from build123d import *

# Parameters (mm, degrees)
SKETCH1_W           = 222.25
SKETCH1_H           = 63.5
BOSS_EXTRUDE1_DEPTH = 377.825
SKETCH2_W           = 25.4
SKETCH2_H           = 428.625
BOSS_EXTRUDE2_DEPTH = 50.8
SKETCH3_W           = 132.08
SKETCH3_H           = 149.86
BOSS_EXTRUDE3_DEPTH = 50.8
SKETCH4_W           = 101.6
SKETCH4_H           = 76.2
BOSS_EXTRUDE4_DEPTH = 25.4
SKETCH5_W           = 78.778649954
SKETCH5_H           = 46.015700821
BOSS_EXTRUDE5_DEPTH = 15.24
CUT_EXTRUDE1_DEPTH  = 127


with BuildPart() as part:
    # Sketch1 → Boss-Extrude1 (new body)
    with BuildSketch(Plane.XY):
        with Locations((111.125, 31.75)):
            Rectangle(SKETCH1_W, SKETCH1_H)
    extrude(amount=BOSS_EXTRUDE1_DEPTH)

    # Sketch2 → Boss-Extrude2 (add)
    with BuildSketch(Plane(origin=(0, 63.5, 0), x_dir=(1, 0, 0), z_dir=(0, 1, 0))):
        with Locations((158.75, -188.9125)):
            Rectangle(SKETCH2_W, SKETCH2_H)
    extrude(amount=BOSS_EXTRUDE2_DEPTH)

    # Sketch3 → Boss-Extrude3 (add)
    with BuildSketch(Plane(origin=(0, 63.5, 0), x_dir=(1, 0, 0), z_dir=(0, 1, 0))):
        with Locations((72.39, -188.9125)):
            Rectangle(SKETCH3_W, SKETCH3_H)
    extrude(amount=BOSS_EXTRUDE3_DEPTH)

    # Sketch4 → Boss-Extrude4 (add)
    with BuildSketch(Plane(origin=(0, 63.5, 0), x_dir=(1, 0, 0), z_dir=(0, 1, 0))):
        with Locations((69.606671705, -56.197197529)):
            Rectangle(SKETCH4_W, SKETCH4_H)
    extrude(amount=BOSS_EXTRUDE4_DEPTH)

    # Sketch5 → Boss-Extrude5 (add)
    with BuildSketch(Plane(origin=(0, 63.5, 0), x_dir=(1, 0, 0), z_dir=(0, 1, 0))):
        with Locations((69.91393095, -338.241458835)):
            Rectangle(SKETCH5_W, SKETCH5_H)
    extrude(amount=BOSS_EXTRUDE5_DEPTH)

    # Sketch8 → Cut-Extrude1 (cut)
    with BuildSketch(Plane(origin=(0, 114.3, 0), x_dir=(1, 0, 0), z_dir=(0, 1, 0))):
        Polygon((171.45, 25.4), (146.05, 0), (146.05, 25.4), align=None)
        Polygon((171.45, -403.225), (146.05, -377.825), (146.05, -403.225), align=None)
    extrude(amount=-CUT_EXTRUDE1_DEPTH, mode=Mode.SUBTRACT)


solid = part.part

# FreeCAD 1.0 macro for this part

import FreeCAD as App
import Part
import Sketcher

V = App.Vector
Q = App.Units.Quantity


def add_polygon(sketch, points):
    """Adds a closed chain of lines whose ends are joined by coincident constraints."""
    first, n = sketch.GeometryCount, len(points)
    for a, b in zip(points, points[1:] + points[:1]):
        sketch.addGeometry(Part.LineSegment(App.Vector(*a, 0), App.Vector(*b, 0)), False)
    for i in range(n):
        sketch.addConstraint(Sketcher.Constraint("Coincident", first + i, 2, first + (i + 1) % n, 1))

doc = App.newDocument("Part")
body = doc.addObject("PartDesign::Body", "Body")

sketch1 = doc.addObject("Sketcher::SketchObject", "Sketch")
body.addObject(sketch1)
sketch1.AttachmentSupport = (doc.XY_Plane, [""])
sketch1.MapMode = "FlatFace"
add_polygon(sketch1, [(0, 63.5), (0, 0), (222.25, 0), (222.25, 63.5)])
sketch1.addConstraint(Sketcher.Constraint("Vertical", 0))
sketch1.addConstraint(Sketcher.Constraint("Horizontal", 1))
sketch1.addConstraint(Sketcher.Constraint("Vertical", 2))
sketch1.addConstraint(Sketcher.Constraint("Horizontal", 3))
sketch1.addConstraint(Sketcher.Constraint("Coincident", 0, 2, -1, 1))
sketch1.addConstraint(Sketcher.Constraint("DistanceY", 0, 2, 0, 1, Q("2.5 in")))
sketch1.addConstraint(Sketcher.Constraint("DistanceX", 1, 1, 1, 2, Q("8.75 in")))
pad1 = doc.addObject("PartDesign::Pad", "Pad")
body.addObject(pad1)
pad1.Profile = sketch1
pad1.Length = Q("14.875 in")

sketch2 = doc.addObject("Sketcher::SketchObject", "Sketch001")
body.addObject(sketch2)
sketch2.AttachmentSupport = (doc.XZ_Plane, [""])
sketch2.MapMode = "FlatFace"
sketch2.AttachmentOffset = App.Placement(V(0, 0, -2.5 * 25.4), App.Rotation())
add_polygon(sketch2, [(146.05, -25.4), (146.05, 403.225), (171.45, 403.225), (171.45, -25.4)])
sketch2.addConstraint(Sketcher.Constraint("Vertical", 0))
sketch2.addConstraint(Sketcher.Constraint("Horizontal", 1))
sketch2.addConstraint(Sketcher.Constraint("Vertical", 2))
sketch2.addConstraint(Sketcher.Constraint("Horizontal", 3))
sketch2.addConstraint(Sketcher.Constraint("DistanceX", 1, 1, 1, 2, Q("1 in")))
sketch2.addConstraint(Sketcher.Constraint("DistanceY", 2, 2, -1, 1, Q("1 in")))
sketch2.addConstraint(Sketcher.Constraint("DistanceY", 0, 1, 0, 2, Q("16.875 in")))
sketch2.addConstraint(Sketcher.Constraint("DistanceX", -1, 1, 0, 2, Q("5.75 in")))
pad2 = doc.addObject("PartDesign::Pad", "Pad001")
body.addObject(pad2)
pad2.Profile = sketch2
pad2.Length = Q("2 in")
pad2.Reversed = True

sketch3 = doc.addObject("Sketcher::SketchObject", "Sketch002")
body.addObject(sketch3)
sketch3.AttachmentSupport = (doc.XZ_Plane, [""])
sketch3.MapMode = "FlatFace"
sketch3.AttachmentOffset = App.Placement(V(0, 0, -2.5 * 25.4), App.Rotation())
add_polygon(sketch3, [(6.35, 113.9825), (6.35, 263.8425), (138.43, 263.8425), (138.43, 113.9825)])
sketch3.addConstraint(Sketcher.Constraint("Vertical", 0))
sketch3.addConstraint(Sketcher.Constraint("Horizontal", 1))
sketch3.addConstraint(Sketcher.Constraint("Vertical", 2))
sketch3.addConstraint(Sketcher.Constraint("Horizontal", 3))
sketch3.addConstraint(Sketcher.Constraint("DistanceX", 1, 1, 1, 2, Q("5.2 in")))
sketch3.addConstraint(Sketcher.Constraint("DistanceY", 0, 1, 0, 2, Q("5.9 in")))
sketch3.addConstraint(Sketcher.Constraint("DistanceX", -1, 1, 0, 2, Q("0.25 in")))
sketch3.addConstraint(Sketcher.Constraint("DistanceY", -1, 1, 0, 2, Q("10.3875 in")))
pad3 = doc.addObject("PartDesign::Pad", "Pad002")
body.addObject(pad3)
pad3.Profile = sketch3
pad3.Length = Q("2 in")
pad3.Reversed = True

sketch4 = doc.addObject("Sketcher::SketchObject", "Sketch003")
body.addObject(sketch4)
sketch4.AttachmentSupport = (doc.XZ_Plane, [""])
sketch4.MapMode = "FlatFace"
sketch4.AttachmentOffset = App.Placement(V(0, 0, -2.5 * 25.4), App.Rotation())
add_polygon(sketch4, [(18.806672, 18.097198), (18.806672, 94.297198), (120.406672, 94.297198), (120.406672, 18.097198)])
sketch4.addConstraint(Sketcher.Constraint("Vertical", 0))
sketch4.addConstraint(Sketcher.Constraint("Horizontal", 1))
sketch4.addConstraint(Sketcher.Constraint("Vertical", 2))
sketch4.addConstraint(Sketcher.Constraint("Horizontal", 3))
sketch4.addConstraint(Sketcher.Constraint("DistanceX", 1, 1, 1, 2, Q("4 in")))
sketch4.addConstraint(Sketcher.Constraint("DistanceY", 0, 1, 0, 2, Q("3 in")))
sketch4.addConstraint(Sketcher.Constraint("DistanceX", -1, 1, 0, 2, 18.806672))
sketch4.addConstraint(Sketcher.Constraint("DistanceY", -1, 1, 0, 2, 94.297198))
pad4 = doc.addObject("PartDesign::Pad", "Pad003")
body.addObject(pad4)
pad4.Profile = sketch4
pad4.Length = Q("1 in")
pad4.Reversed = True

sketch5 = doc.addObject("Sketcher::SketchObject", "Sketch004")
body.addObject(sketch5)
sketch5.AttachmentSupport = (doc.XZ_Plane, [""])
sketch5.MapMode = "FlatFace"
sketch5.AttachmentOffset = App.Placement(V(0, 0, -2.5 * 25.4), App.Rotation())
add_polygon(sketch5, [(30.524606, 315.233608), (30.524606, 361.249309), (109.303256, 361.249309), (109.303256, 315.233608)])
sketch5.addConstraint(Sketcher.Constraint("Vertical", 0))
sketch5.addConstraint(Sketcher.Constraint("Horizontal", 1))
sketch5.addConstraint(Sketcher.Constraint("Vertical", 2))
sketch5.addConstraint(Sketcher.Constraint("Horizontal", 3))
sketch5.addConstraint(Sketcher.Constraint("DistanceY", 0, 1, 0, 2, 46.015701))
sketch5.addConstraint(Sketcher.Constraint("DistanceX", 1, 1, 1, 2, 78.77865))
sketch5.addConstraint(Sketcher.Constraint("DistanceY", -1, 1, 0, 2, 361.249309))
sketch5.addConstraint(Sketcher.Constraint("DistanceX", -1, 1, 0, 2, 30.524606))
pad5 = doc.addObject("PartDesign::Pad", "Pad004")
body.addObject(pad5)
pad5.Profile = sketch5
pad5.Length = Q("0.6 in")
pad5.Reversed = True

sketch6 = doc.addObject("Sketcher::SketchObject", "Sketch005")
body.addObject(sketch6)
sketch6.AttachmentSupport = (doc.XZ_Plane, [""])
sketch6.MapMode = "FlatFace"
sketch6.AttachmentOffset = App.Placement(V(0, 0, -4.5 * 25.4), App.Rotation())
add_polygon(sketch6, [(146.05, 0), (171.45, -25.4), (146.05, -25.4)])
add_polygon(sketch6, [(171.45, 403.225), (146.05, 377.825), (146.05, 403.225)])
sketch6.addConstraint(Sketcher.Constraint("Horizontal", 1))
sketch6.addConstraint(Sketcher.Constraint("Vertical", 2))
sketch6.addConstraint(Sketcher.Constraint("Vertical", 4))
sketch6.addConstraint(Sketcher.Constraint("Horizontal", 5))
sketch6.addConstraint(Sketcher.Constraint("PointOnObject", 2, 2, -1))
sketch6.addConstraint(Sketcher.Constraint("Perpendicular", 0, 3))
sketch6.addConstraint(Sketcher.Constraint("Vertical", 2, 2, 3, 2))
sketch6.addConstraint(Sketcher.Constraint("Vertical", 0, 2, 5, 2))
sketch6.addConstraint(Sketcher.Constraint("Equal", 5, 2))
sketch6.addConstraint(Sketcher.Constraint("DistanceX", 1, 2, 1, 1, Q("1 in")))
sketch6.addConstraint(Sketcher.Constraint("DistanceX", -1, 1, 0, 2, Q("6.75 in")))
sketch6.addConstraint(Sketcher.Constraint("DistanceY", -1, 1, 3, 2, Q("14.875 in")))
pocket1 = doc.addObject("PartDesign::Pocket", "Pocket")
body.addObject(pocket1)
pocket1.Profile = sketch6
pocket1.Length = Q("5 in")
pocket1.Reversed = True

doc.recompute()
